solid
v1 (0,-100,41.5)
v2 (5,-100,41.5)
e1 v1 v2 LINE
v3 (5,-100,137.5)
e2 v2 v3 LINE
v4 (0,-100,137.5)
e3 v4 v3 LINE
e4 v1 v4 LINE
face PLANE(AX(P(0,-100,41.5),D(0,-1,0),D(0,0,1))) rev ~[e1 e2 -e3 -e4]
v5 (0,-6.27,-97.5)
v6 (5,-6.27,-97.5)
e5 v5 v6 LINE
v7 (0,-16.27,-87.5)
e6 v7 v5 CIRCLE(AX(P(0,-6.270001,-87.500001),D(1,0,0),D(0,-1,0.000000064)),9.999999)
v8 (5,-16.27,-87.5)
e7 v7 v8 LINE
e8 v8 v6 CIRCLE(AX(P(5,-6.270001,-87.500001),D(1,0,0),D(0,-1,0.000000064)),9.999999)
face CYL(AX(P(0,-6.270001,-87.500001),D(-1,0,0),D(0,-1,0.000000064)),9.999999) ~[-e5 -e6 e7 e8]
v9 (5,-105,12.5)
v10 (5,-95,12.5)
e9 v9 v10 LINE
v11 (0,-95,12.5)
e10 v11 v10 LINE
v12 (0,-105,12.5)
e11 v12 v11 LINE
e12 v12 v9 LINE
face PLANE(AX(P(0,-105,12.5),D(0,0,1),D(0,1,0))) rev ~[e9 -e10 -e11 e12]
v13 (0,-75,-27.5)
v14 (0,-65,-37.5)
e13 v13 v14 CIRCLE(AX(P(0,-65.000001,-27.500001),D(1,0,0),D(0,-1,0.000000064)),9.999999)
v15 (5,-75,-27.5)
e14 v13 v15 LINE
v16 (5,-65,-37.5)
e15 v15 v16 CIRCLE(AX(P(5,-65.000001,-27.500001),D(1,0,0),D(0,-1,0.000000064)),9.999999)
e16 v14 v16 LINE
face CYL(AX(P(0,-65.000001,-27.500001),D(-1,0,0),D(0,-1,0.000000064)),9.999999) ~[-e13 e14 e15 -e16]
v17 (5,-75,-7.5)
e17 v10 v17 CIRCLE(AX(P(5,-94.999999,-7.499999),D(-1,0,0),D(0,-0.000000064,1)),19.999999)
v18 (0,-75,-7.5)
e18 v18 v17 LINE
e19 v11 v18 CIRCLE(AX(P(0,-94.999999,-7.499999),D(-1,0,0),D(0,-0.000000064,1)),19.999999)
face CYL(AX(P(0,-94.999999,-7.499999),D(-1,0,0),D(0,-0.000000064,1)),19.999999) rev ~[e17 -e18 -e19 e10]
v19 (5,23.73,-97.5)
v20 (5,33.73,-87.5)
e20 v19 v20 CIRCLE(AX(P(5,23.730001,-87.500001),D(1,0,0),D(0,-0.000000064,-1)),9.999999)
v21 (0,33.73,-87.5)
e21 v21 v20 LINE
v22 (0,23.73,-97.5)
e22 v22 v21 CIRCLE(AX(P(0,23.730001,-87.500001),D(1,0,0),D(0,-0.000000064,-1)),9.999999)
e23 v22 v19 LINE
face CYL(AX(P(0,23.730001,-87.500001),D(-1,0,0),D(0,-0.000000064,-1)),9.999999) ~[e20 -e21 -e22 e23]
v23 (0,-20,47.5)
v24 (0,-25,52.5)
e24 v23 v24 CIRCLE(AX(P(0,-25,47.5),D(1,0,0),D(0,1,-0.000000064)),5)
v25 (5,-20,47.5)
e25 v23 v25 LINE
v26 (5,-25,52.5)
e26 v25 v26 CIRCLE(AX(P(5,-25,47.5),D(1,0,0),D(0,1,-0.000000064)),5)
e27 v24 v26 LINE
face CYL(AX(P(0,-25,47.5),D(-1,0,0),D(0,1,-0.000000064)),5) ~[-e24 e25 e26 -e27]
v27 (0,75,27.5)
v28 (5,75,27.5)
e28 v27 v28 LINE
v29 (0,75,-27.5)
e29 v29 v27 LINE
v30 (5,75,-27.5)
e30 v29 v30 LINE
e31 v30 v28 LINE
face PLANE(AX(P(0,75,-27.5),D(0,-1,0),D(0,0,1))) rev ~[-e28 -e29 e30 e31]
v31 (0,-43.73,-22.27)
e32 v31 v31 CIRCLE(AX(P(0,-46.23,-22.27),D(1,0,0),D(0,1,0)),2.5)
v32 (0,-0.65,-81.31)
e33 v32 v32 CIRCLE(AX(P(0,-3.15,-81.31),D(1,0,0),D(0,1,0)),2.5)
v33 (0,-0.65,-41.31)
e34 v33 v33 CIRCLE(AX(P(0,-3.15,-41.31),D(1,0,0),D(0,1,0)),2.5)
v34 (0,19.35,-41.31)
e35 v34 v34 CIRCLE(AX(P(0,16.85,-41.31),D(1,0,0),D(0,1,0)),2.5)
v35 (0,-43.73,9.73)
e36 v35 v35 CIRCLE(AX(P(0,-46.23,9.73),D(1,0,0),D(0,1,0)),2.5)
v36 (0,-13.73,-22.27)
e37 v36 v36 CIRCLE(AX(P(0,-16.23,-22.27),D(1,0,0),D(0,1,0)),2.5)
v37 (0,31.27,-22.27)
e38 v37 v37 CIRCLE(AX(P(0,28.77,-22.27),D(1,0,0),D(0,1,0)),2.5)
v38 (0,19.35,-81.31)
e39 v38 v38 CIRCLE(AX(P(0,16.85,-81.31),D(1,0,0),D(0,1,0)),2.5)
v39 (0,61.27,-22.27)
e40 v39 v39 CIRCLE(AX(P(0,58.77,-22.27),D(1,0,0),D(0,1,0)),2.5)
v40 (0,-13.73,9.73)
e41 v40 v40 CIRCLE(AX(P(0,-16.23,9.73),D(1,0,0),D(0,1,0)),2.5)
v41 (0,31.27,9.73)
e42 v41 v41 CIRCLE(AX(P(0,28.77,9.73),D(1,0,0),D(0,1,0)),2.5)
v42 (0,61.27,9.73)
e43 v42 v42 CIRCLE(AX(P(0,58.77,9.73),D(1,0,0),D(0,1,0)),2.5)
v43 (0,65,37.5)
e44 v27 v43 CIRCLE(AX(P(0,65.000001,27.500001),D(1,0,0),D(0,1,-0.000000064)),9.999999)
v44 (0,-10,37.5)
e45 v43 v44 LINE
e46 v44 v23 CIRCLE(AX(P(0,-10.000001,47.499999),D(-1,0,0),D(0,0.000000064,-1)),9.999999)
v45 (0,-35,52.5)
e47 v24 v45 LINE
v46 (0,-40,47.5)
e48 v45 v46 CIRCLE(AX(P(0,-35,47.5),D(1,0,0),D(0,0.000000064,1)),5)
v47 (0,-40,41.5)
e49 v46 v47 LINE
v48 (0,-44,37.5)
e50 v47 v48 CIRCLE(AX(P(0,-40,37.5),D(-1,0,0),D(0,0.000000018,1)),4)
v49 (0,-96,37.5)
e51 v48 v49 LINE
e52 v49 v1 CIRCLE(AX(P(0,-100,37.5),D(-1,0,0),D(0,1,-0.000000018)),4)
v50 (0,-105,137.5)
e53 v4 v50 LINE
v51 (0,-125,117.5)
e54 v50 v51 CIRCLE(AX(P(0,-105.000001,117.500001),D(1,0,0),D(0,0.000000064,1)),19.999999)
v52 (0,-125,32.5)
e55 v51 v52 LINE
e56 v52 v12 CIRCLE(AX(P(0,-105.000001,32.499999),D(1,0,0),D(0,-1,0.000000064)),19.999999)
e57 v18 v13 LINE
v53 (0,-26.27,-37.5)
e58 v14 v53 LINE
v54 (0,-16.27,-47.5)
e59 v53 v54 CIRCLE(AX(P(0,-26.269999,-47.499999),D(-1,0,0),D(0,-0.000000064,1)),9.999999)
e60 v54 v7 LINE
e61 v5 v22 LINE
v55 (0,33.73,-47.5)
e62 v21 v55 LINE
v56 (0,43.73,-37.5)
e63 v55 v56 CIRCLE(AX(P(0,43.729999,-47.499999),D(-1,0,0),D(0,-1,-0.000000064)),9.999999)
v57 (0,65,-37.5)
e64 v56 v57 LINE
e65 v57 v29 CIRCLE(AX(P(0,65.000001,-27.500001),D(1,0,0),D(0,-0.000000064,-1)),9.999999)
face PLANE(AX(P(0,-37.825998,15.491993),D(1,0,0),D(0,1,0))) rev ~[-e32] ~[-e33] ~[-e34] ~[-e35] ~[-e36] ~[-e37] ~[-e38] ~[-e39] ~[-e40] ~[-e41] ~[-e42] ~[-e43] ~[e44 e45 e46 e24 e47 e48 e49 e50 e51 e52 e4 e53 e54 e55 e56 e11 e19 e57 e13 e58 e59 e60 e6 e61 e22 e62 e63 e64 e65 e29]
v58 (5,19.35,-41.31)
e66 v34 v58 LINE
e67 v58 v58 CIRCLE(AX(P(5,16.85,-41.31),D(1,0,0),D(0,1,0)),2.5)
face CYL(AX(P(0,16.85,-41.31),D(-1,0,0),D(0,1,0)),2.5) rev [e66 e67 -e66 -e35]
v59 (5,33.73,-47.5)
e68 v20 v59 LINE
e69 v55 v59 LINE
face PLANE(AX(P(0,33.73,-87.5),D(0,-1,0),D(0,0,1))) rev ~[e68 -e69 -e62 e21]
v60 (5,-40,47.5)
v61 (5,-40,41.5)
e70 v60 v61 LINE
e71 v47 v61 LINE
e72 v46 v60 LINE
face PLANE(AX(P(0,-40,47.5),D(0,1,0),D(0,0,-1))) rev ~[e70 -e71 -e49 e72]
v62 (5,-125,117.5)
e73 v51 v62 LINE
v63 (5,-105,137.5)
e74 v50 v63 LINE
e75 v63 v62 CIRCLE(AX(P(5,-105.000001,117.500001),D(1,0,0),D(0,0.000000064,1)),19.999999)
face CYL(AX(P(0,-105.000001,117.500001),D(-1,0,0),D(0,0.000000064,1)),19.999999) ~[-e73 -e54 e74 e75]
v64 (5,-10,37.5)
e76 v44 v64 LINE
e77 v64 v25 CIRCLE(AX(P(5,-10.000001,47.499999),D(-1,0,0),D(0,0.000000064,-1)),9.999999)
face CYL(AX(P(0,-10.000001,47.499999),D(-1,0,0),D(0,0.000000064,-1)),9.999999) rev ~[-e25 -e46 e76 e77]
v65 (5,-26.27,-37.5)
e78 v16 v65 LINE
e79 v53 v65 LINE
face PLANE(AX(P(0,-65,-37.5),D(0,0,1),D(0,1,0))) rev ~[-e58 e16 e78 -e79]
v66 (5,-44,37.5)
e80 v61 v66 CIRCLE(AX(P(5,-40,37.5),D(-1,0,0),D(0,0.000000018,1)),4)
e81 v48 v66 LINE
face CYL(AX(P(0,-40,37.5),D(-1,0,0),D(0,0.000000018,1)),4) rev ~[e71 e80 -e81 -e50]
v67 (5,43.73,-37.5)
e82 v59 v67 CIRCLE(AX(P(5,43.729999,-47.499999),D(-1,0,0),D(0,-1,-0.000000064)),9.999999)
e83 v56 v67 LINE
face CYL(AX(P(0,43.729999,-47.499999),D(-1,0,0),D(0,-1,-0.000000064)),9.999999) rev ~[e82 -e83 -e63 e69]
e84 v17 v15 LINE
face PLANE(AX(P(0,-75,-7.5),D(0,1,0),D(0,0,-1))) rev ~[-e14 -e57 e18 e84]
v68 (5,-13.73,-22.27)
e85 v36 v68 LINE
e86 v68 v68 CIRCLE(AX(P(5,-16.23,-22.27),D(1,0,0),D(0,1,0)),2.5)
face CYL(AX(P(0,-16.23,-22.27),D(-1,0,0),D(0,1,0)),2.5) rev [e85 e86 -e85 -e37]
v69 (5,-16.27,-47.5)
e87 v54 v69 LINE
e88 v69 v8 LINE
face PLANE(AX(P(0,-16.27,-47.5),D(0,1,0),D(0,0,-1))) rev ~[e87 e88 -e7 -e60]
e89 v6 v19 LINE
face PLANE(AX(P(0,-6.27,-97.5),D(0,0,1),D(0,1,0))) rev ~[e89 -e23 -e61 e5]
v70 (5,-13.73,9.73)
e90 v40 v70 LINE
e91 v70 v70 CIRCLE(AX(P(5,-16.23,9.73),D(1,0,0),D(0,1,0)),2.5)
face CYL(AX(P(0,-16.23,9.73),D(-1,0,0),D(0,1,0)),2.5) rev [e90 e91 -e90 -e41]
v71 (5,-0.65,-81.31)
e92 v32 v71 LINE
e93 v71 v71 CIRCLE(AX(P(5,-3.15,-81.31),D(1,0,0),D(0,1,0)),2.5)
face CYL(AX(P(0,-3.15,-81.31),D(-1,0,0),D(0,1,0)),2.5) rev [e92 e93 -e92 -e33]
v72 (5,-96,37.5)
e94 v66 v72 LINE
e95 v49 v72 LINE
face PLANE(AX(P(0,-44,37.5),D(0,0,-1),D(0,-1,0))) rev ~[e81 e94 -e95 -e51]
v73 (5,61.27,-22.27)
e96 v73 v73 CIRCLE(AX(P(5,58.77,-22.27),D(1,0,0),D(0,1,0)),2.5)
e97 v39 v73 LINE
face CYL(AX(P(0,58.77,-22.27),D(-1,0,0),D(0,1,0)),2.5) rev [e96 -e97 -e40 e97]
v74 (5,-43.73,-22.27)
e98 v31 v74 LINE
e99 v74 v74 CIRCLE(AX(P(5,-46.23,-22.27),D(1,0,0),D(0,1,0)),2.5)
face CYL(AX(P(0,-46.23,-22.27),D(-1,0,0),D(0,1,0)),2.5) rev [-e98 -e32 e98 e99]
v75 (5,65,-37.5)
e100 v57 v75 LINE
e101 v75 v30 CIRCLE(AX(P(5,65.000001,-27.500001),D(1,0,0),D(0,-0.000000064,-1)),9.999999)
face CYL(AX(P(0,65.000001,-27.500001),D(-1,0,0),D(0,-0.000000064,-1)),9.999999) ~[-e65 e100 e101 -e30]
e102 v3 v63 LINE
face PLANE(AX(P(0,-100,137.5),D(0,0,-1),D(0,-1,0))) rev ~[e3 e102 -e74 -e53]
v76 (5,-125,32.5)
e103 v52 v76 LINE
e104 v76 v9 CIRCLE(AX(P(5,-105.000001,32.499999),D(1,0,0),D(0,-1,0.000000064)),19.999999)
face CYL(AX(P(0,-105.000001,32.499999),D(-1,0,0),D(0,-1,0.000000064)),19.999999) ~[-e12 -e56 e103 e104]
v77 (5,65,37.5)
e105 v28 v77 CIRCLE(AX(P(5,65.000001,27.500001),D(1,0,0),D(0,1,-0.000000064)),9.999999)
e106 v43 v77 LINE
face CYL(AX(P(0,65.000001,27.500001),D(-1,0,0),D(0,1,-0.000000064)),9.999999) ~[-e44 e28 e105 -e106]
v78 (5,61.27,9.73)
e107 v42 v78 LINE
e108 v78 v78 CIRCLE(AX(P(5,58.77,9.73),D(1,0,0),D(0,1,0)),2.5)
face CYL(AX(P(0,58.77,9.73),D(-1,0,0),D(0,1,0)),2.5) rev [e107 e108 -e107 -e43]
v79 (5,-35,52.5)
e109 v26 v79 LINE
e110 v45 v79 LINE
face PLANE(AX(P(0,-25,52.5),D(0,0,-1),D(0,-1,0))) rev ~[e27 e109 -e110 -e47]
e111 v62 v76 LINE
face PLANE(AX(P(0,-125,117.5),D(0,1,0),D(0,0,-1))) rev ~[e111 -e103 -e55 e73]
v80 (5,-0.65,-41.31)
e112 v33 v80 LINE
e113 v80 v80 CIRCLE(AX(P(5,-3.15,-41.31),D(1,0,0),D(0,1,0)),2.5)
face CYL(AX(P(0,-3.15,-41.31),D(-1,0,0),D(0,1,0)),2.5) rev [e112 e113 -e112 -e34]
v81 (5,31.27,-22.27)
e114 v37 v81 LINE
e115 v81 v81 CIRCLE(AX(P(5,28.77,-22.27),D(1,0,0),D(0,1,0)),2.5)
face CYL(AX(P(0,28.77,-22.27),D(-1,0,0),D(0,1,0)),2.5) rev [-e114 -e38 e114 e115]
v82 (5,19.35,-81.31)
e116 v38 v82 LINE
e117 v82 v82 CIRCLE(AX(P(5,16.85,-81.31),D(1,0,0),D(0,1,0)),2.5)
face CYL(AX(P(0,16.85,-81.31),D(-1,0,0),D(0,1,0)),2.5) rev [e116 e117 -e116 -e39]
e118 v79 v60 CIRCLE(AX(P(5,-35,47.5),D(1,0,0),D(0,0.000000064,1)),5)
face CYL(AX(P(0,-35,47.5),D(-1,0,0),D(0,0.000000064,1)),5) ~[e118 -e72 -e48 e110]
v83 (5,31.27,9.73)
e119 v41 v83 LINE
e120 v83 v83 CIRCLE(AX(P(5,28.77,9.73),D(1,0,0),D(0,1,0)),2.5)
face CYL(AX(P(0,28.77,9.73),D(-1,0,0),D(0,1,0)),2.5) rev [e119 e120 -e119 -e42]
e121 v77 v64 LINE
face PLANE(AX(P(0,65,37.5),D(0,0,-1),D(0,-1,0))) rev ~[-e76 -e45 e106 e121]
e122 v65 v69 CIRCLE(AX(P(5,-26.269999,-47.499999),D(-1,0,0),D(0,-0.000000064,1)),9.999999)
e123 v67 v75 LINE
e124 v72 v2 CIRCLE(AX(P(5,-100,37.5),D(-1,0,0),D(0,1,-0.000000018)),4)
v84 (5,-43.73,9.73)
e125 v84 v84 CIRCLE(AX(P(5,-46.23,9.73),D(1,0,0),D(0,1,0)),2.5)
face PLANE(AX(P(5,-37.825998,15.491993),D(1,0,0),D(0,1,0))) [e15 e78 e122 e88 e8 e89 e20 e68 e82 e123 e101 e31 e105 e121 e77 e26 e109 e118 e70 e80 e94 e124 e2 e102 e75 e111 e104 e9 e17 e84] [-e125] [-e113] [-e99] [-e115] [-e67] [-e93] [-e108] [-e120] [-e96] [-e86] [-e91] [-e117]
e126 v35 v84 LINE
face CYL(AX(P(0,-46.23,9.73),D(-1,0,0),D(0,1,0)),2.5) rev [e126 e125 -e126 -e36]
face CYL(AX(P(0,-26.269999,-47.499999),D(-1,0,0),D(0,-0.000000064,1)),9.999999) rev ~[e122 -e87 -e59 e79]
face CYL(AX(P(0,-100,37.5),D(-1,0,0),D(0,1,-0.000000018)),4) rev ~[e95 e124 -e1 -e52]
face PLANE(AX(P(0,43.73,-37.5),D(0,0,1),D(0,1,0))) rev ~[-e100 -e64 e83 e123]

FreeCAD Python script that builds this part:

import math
import FreeCAD as App
import Part
import Sketcher

doc = App.newDocument("Part")
params = doc.addObject("Spreadsheet::Sheet", "Params")
for row, (alias, value) in enumerate([
    ("sketch1_diameter", "5 mm"),
    ("sketch1_radius", "9.999999 mm"),
    ("sketch1_radius2", "5 mm"),
    ("sketch1_radius3", "4 mm"),
    ("sketch1_radius4", "19.999999 mm"),
    ("pad1_length", "5 mm"),
], start=1):
    params.set(f"A{row}", alias)
    params.set(f"B{row}", "=" + value)
    params.setAlias(f"B{row}", alias)

body = doc.addObject("PartDesign::Body", "Body")

# Sketch on YZ plane
sketch1 = body.newObject("Sketcher::SketchObject", "Sketch")
sketch1.AttachmentSupport = (doc.getObject("YZ_Plane"), [""])
sketch1.MapMode = "FlatFace"
sketch1.addGeometry([
    Part.LineSegment(App.Vector(43.7, -37.5, 0), App.Vector(65, -37.5, 0)),  # 0
    Part.ArcOfCircle(Part.Circle(App.Vector(65, -27.5, 0), App.Vector(0, 0, 1), 10), math.radians(-90), math.radians(0)),  # 1
    Part.LineSegment(App.Vector(75, -27.5, 0), App.Vector(75, 27.5, 0)),  # 2
    Part.ArcOfCircle(Part.Circle(App.Vector(65, 27.5, 0), App.Vector(0, 0, 1), 10), math.radians(0), math.radians(90)),  # 3
    Part.LineSegment(App.Vector(65, 37.5, 0), App.Vector(-10, 37.5, 0)),  # 4
    Part.ArcOfCircle(Part.Circle(App.Vector(-10, 47.5, 0), App.Vector(0, 0, 1), 10), math.radians(180), math.radians(270)),  # 5
    Part.ArcOfCircle(Part.Circle(App.Vector(-25, 47.5, 0), App.Vector(0, 0, 1), 5), math.radians(0), math.radians(90)),  # 6
    Part.LineSegment(App.Vector(-25, 52.5, 0), App.Vector(-35, 52.5, 0)),  # 7
    Part.ArcOfCircle(Part.Circle(App.Vector(-35, 47.5, 0), App.Vector(0, 0, 1), 5), math.radians(90), math.radians(180)),  # 8
    Part.LineSegment(App.Vector(-40, 47.5, 0), App.Vector(-40, 41.5, 0)),  # 9
    Part.ArcOfCircle(Part.Circle(App.Vector(-40, 37.5, 0), App.Vector(0, 0, 1), 4), math.radians(-180), math.radians(90)),  # 10
    Part.LineSegment(App.Vector(-44, 37.5, 0), App.Vector(-96, 37.5, 0)),  # 11
    Part.ArcOfCircle(Part.Circle(App.Vector(-100, 37.5, 0), App.Vector(0, 0, 1), 4), math.radians(90), math.radians(360)),  # 12
    Part.LineSegment(App.Vector(-100, 41.5, 0), App.Vector(-100, 137.5, 0)),  # 13
    Part.LineSegment(App.Vector(-100, 137.5, 0), App.Vector(-105, 137.5, 0)),  # 14
    Part.ArcOfCircle(Part.Circle(App.Vector(-105, 117.5, 0), App.Vector(0, 0, 1), 20), math.radians(90), math.radians(180)),  # 15
    Part.LineSegment(App.Vector(-125, 117.5, 0), App.Vector(-125, 32.5, 0)),  # 16
    Part.ArcOfCircle(Part.Circle(App.Vector(-105, 32.5, 0), App.Vector(0, 0, 1), 20), math.radians(180), math.radians(270)),  # 17
    Part.LineSegment(App.Vector(-105, 12.5, 0), App.Vector(-95, 12.5, 0)),  # 18
    Part.ArcOfCircle(Part.Circle(App.Vector(-95, -7.5, 0), App.Vector(0, 0, 1), 20), math.radians(0), math.radians(90)),  # 19
    Part.LineSegment(App.Vector(-75, -7.5, 0), App.Vector(-75, -27.5, 0)),  # 20
    Part.ArcOfCircle(Part.Circle(App.Vector(-65, -27.5, 0), App.Vector(0, 0, 1), 10), math.radians(180), math.radians(270)),  # 21
    Part.LineSegment(App.Vector(-65, -37.5, 0), App.Vector(-26.3, -37.5, 0)),  # 22
    Part.ArcOfCircle(Part.Circle(App.Vector(-26.3, -47.5, 0), App.Vector(0, 0, 1), 10), math.radians(0), math.radians(90)),  # 23
    Part.LineSegment(App.Vector(-16.3, -47.5, 0), App.Vector(-16.3, -87.5, 0)),  # 24
    Part.ArcOfCircle(Part.Circle(App.Vector(-6.3, -87.5, 0), App.Vector(0, 0, 1), 10), math.radians(180), math.radians(270)),  # 25
    Part.LineSegment(App.Vector(-6.3, -97.5, 0), App.Vector(23.7, -97.5, 0)),  # 26
    Part.ArcOfCircle(Part.Circle(App.Vector(23.7, -87.5, 0), App.Vector(0, 0, 1), 10), math.radians(-90), math.radians(0)),  # 27
    Part.LineSegment(App.Vector(33.7, -87.5, 0), App.Vector(33.7, -47.5, 0)),  # 28
    Part.ArcOfCircle(Part.Circle(App.Vector(43.7, -47.5, 0), App.Vector(0, 0, 1), 10), math.radians(90), math.radians(180)),  # 29
    Part.Circle(App.Vector(-3.1, -81.3, 0), App.Vector(0, 0, 1), 2.5),  # 30
    Part.Circle(App.Vector(-3.1, -41.3, 0), App.Vector(0, 0, 1), 2.5),  # 31
    Part.Circle(App.Vector(16.9, -81.3, 0), App.Vector(0, 0, 1), 2.5),  # 32
    Part.Circle(App.Vector(16.9, -41.3, 0), App.Vector(0, 0, 1), 2.5),  # 33
    Part.Circle(App.Vector(-46.2, -22.3, 0), App.Vector(0, 0, 1), 2.5),  # 34
    Part.Circle(App.Vector(-16.2, -22.3, 0), App.Vector(0, 0, 1), 2.5),  # 35
    Part.Circle(App.Vector(-46.2, 9.7, 0), App.Vector(0, 0, 1), 2.5),  # 36
    Part.Circle(App.Vector(-16.2, 9.7, 0), App.Vector(0, 0, 1), 2.5),  # 37
    Part.Circle(App.Vector(28.8, -22.3, 0), App.Vector(0, 0, 1), 2.5),  # 38
    Part.Circle(App.Vector(58.8, -22.3, 0), App.Vector(0, 0, 1), 2.5),  # 39
    Part.Circle(App.Vector(28.8, 9.7, 0), App.Vector(0, 0, 1), 2.5),  # 40
    Part.Circle(App.Vector(58.8, 9.7, 0), App.Vector(0, 0, 1), 2.5),  # 41
], False)
sketch1.addConstraint([
    Sketcher.Constraint("Tangent", 0, 2, 1, 1),
    Sketcher.Constraint("Tangent", 1, 2, 2, 1),
    Sketcher.Constraint("Tangent", 2, 2, 3, 1),
    Sketcher.Constraint("Tangent", 3, 2, 4, 1),
    Sketcher.Constraint("Tangent", 4, 2, 5, 2),
    Sketcher.Constraint("Tangent", 5, 1, 6, 1),
    Sketcher.Constraint("Tangent", 6, 2, 7, 1),
    Sketcher.Constraint("Tangent", 7, 2, 8, 1),
    Sketcher.Constraint("Tangent", 8, 2, 9, 1),
    Sketcher.Constraint("Coincident", 9, 2, 10, 2),
    Sketcher.Constraint("Coincident", 10, 1, 11, 1),
    Sketcher.Constraint("Coincident", 11, 2, 12, 2),
    Sketcher.Constraint("Coincident", 12, 1, 13, 1),
    Sketcher.Constraint("Coincident", 13, 2, 14, 1),
    Sketcher.Constraint("Tangent", 14, 2, 15, 1),
    Sketcher.Constraint("Tangent", 15, 2, 16, 1),
    Sketcher.Constraint("Tangent", 16, 2, 17, 1),
    Sketcher.Constraint("Tangent", 17, 2, 18, 1),
    Sketcher.Constraint("Tangent", 18, 2, 19, 2),
    Sketcher.Constraint("Tangent", 19, 1, 20, 1),
    Sketcher.Constraint("Tangent", 20, 2, 21, 1),
    Sketcher.Constraint("Tangent", 21, 2, 22, 1),
    Sketcher.Constraint("Tangent", 22, 2, 23, 2),
    Sketcher.Constraint("Tangent", 23, 1, 24, 1),
    Sketcher.Constraint("Tangent", 24, 2, 25, 1),
    Sketcher.Constraint("Tangent", 25, 2, 26, 1),
    Sketcher.Constraint("Tangent", 26, 2, 27, 1),
    Sketcher.Constraint("Tangent", 27, 2, 28, 1),
    Sketcher.Constraint("Tangent", 28, 2, 29, 2),
    Sketcher.Constraint("Tangent", 29, 1, 0, 1),
    Sketcher.Constraint("Horizontal", 0),
    Sketcher.Constraint("Vertical", 2),
    Sketcher.Constraint("Horizontal", 4),
    Sketcher.Constraint("Horizontal", 7),
    Sketcher.Constraint("Vertical", 9),
    Sketcher.Constraint("Horizontal", 11),
    Sketcher.Constraint("Vertical", 13),
    Sketcher.Constraint("Horizontal", 14),
    Sketcher.Constraint("Vertical", 16),
    Sketcher.Constraint("Horizontal", 18),
    Sketcher.Constraint("Vertical", 20),
    Sketcher.Constraint("Horizontal", 22),
    Sketcher.Constraint("Vertical", 24),
    Sketcher.Constraint("Horizontal", 26),
    Sketcher.Constraint("Vertical", 28),
    Sketcher.Constraint("Equal", 1, 3),
    Sketcher.Constraint("Equal", 3, 5),
    Sketcher.Constraint("Equal", 6, 8),
    Sketcher.Constraint("Equal", 10, 12),
    Sketcher.Constraint("Equal", 15, 17),
    Sketcher.Constraint("Equal", 17, 19),
    Sketcher.Constraint("Equal", 5, 21),
    Sketcher.Constraint("Equal", 21, 23),
    Sketcher.Constraint("Equal", 23, 25),
    Sketcher.Constraint("Equal", 25, 27),
    Sketcher.Constraint("Equal", 27, 29),
    Sketcher.Constraint("Equal", 30, 31),
    Sketcher.Constraint("Equal", 31, 32),
    Sketcher.Constraint("Equal", 32, 33),
    Sketcher.Constraint("Equal", 33, 34),
    Sketcher.Constraint("Equal", 34, 35),
    Sketcher.Constraint("Equal", 35, 36),
    Sketcher.Constraint("Equal", 36, 37),
    Sketcher.Constraint("Equal", 37, 38),
    Sketcher.Constraint("Equal", 38, 39),
    Sketcher.Constraint("Equal", 39, 40),
    Sketcher.Constraint("Equal", 40, 41),
    Sketcher.Constraint("Symmetric", 3, 3, 21, 3, -1, 1),
    Sketcher.Constraint("Horizontal", 5, 3, 6, 3),
    Sketcher.Constraint("Horizontal", 10, 3, 12, 3),
    Sketcher.Constraint("Horizontal", 1, 3, 21, 3),
    Sketcher.Constraint("Horizontal", 30, 3, 32, 3),
    Sketcher.Constraint("Horizontal", 31, 3, 33, 3),
    Sketcher.Constraint("Horizontal", 34, 3, 35, 3),
    Sketcher.Constraint("Horizontal", 36, 3, 37, 3),
    Sketcher.Constraint("Horizontal", 35, 3, 38, 3),
    Sketcher.Constraint("Horizontal", 38, 3, 39, 3),
    Sketcher.Constraint("Horizontal", 37, 3, 40, 3),
    Sketcher.Constraint("Horizontal", 40, 3, 41, 3),
    Sketcher.Constraint("Horizontal", 12, 3, 3, 2),
    Sketcher.Constraint("Horizontal", 4, 2, 10, 1),
    Sketcher.Constraint("Vertical", 30, 3, 31, 3),
    Sketcher.Constraint("Vertical", 32, 3, 33, 3),
    Sketcher.Constraint("Vertical", 34, 3, 36, 3),
    Sketcher.Constraint("Vertical", 35, 3, 37, 3),
    Sketcher.Constraint("Vertical", 38, 3, 40, 3),
    Sketcher.Constraint("Vertical", 39, 3, 41, 3),
    Sketcher.Constraint("Vertical", 10, 3, 8, 2),
    Sketcher.Constraint("Equal", 7, 18),
    Sketcher.Constraint("Diameter", 30, 5.0),
    Sketcher.Constraint("Radius", 1, 9.999999),
    Sketcher.Constraint("Radius", 6, 5.0),
    Sketcher.Constraint("Radius", 10, 4.0),
    Sketcher.Constraint("Radius", 15, 19.999999),
    Sketcher.Constraint("DistanceX", 4, 2, 4, 1, 75.0),
    Sketcher.Constraint("DistanceX", 7, 2, 7, 1, 10.0),
    Sketcher.Constraint("DistanceX", 11, 2, 11, 1, 52.0),
    Sketcher.Constraint("DistanceX", 14, 2, 14, 1, 5.0),
    Sketcher.Constraint("DistanceX", 26, 1, 26, 2, 30.0),
    Sketcher.Constraint("DistanceY", 2, 1, 2, 2, 55.0),
    Sketcher.Constraint("DistanceY", 13, 1, 13, 2, 96.0),
    Sketcher.Constraint("DistanceY", 16, 2, 16, 1, 85.0),
    Sketcher.Constraint("DistanceY", 24, 2, 24, 1, 40.0),
    Sketcher.Constraint("DistanceX", -1, 1, 1, 3, 65.000001),
    Sketcher.Constraint("DistanceY", 30, 3, 31, 3, 40.0),
    Sketcher.Constraint("DistanceX", 30, 3, 32, 3, 20.0),
    Sketcher.Constraint("DistanceX", 34, 3, 35, 3, 30.0),
    Sketcher.Constraint("DistanceY", 34, 3, 36, 3, 32.0),
    Sketcher.Constraint("DistanceX", 35, 3, 38, 3, 45.0),
    Sketcher.Constraint("DistanceX", 38, 3, 39, 3, 30.0),
    Sketcher.Constraint("DistanceX", 0, 1, 0, 2, 21.27),
    Sketcher.Constraint("DistanceX", 30, 3, -1, 1, 3.15),
    Sketcher.Constraint("DistanceY", 30, 3, -1, 1, 81.31),
    Sketcher.Constraint("DistanceX", 34, 3, -1, 1, 46.23),
    Sketcher.Constraint("DistanceY", 34, 3, -1, 1, 22.27),
])
sketch1.setExpression("Constraints[89]", "Params.sketch1_diameter")
sketch1.setExpression("Constraints[90]", "Params.sketch1_radius")
sketch1.setExpression("Constraints[91]", "Params.sketch1_radius2")
sketch1.setExpression("Constraints[92]", "Params.sketch1_radius3")
sketch1.setExpression("Constraints[93]", "Params.sketch1_radius4")
pad1 = body.newObject("PartDesign::Pad", "Pad")
pad1.Profile = sketch1
pad1.setExpression("Length", "Params.pad1_length")

doc.recompute()
